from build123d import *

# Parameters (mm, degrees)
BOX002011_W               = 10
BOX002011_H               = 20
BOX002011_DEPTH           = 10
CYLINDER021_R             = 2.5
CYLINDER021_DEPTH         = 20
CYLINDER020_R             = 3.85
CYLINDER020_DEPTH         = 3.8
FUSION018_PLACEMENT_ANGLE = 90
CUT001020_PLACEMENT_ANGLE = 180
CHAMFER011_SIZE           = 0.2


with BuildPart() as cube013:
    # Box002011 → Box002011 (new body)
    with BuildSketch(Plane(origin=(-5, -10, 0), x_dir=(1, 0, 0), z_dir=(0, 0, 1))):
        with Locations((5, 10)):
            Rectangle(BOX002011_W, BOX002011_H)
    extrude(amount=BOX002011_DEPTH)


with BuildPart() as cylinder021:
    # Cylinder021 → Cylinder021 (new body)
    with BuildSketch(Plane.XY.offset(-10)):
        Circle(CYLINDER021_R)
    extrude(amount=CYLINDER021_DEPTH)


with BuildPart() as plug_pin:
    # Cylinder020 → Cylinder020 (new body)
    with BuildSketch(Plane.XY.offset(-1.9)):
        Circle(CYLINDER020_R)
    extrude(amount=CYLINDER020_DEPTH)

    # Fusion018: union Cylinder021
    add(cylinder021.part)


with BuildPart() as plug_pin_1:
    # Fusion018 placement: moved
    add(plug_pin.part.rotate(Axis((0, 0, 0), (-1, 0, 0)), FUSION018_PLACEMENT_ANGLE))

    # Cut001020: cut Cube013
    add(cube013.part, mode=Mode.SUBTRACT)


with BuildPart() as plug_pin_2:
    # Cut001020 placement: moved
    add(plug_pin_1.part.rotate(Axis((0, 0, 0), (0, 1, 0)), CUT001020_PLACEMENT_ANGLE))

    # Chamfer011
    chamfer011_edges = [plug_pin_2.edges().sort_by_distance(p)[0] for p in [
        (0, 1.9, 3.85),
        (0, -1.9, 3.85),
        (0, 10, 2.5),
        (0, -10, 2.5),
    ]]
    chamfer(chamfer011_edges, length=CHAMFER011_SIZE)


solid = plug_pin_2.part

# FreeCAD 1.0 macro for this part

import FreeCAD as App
import Part
import Sketcher
Q = App.Units.Quantity


def edges_at(feature, points):
    """Names of the edges that pass closest to the given points."""
    edges = feature.Shape.Edges
    near = lambda p: min(range(len(edges)), key=lambda i: edges[i].distToShape(Part.Vertex(*p))[0])
    return sorted({f"Edge{near(p) + 1}" for p in points})

doc = App.newDocument("Part")
body = doc.addObject("PartDesign::Body", "Body")

sketch1 = body.newObject("Sketcher::SketchObject", "Sketch")
sketch1.AttachmentSupport = (doc.getObject("XY_Plane"), [""])
sketch1.MapMode = "FlatFace"
sketch1.addGeometry(Part.LineSegment(App.Vector(-5, 10, 0), App.Vector(-5, -10, 0)), False)
sketch1.addGeometry(Part.LineSegment(App.Vector(-5, -10, 0), App.Vector(5, -10, 0)), False)
sketch1.addGeometry(Part.LineSegment(App.Vector(5, -10, 0), App.Vector(5, 10, 0)), False)
sketch1.addGeometry(Part.LineSegment(App.Vector(5, 10, 0), App.Vector(-5, 10, 0)), False)
sketch1.addConstraint(Sketcher.Constraint("Coincident", 0, 2, 1, 1))
sketch1.addConstraint(Sketcher.Constraint("Coincident", 1, 2, 2, 1))
sketch1.addConstraint(Sketcher.Constraint("Coincident", 2, 2, 3, 1))
sketch1.addConstraint(Sketcher.Constraint("Coincident", 3, 2, 0, 1))
sketch1.addConstraint(Sketcher.Constraint("Vertical", 0))
sketch1.addConstraint(Sketcher.Constraint("Horizontal", 1))
sketch1.addConstraint(Sketcher.Constraint("Vertical", 2))
sketch1.addConstraint(Sketcher.Constraint("Horizontal", 3))
sketch1.addConstraint(Sketcher.Constraint("Symmetric", 0, 2, 2, 2, -1, 1))
sketch1.addConstraint(Sketcher.Constraint("DistanceX", 1, 1, 1, 2, Q("10 mm")))
sketch1.addConstraint(Sketcher.Constraint("DistanceY", 0, 2, 0, 1, Q("20 mm")))
pad1 = body.newObject("PartDesign::Pad", "Pad")
pad1.Profile = sketch1
pad1.Length = 10
body2 = doc.addObject("PartDesign::Body", "Body001")

sketch2 = body2.newObject("Sketcher::SketchObject", "Sketch001")
sketch2.AttachmentSupport = (doc.getObject("XY_Plane001"), [""])
sketch2.MapMode = "FlatFace"
sketch2.AttachmentOffset = App.Placement(App.Vector(0, 0, -10), App.Rotation())
sketch2.addGeometry(Part.Circle(App.Vector(0, 0, 0), App.Vector(0, 0, 1), 2.5), False)
sketch2.addConstraint(Sketcher.Constraint("Coincident", 0, 3, -1, 1))
sketch2.addConstraint(Sketcher.Constraint("Diameter", 0, Q("5 mm")))
pad2 = body2.newObject("PartDesign::Pad", "Pad001")
pad2.Profile = sketch2
pad2.Length = 20
body3 = doc.addObject("PartDesign::Body", "Body002")

sketch3 = body3.newObject("Sketcher::SketchObject", "Sketch002")
sketch3.AttachmentSupport = (doc.getObject("XY_Plane002"), [""])
sketch3.MapMode = "FlatFace"
sketch3.AttachmentOffset = App.Placement(App.Vector(0, 0, -1.9), App.Rotation())
sketch3.addGeometry(Part.Circle(App.Vector(0, 0, 0), App.Vector(0, 0, 1), 3.9), False)
sketch3.addConstraint(Sketcher.Constraint("Coincident", 0, 3, -1, 1))
sketch3.addConstraint(Sketcher.Constraint("Diameter", 0, Q("7.7 mm")))
pad3 = body3.newObject("PartDesign::Pad", "Pad002")
pad3.Profile = sketch3
pad3.Length = 3.8
doc.recompute()

boolean = body3.newObject("PartDesign::Boolean", "Boolean")
boolean.Type = "Fuse"
boolean.addObjects([body2])
body4 = doc.addObject("PartDesign::Body", "Body003")
doc.recompute()

body3.Placement = App.Placement(App.Vector(0, 0, 0), App.Rotation(App.Vector(-1, 0, 0), 90))
boolean2 = body4.newObject("PartDesign::Boolean", "Boolean001")
boolean2.Type = "Fuse"
boolean2.addObjects([body3])
doc.recompute()

boolean3 = body4.newObject("PartDesign::Boolean", "Boolean002")
boolean3.Type = "Cut"
boolean3.addObjects([body])
body5 = doc.addObject("PartDesign::Body", "Body004")
doc.recompute()

body4.Placement = App.Placement(App.Vector(0, 0, 0), App.Rotation(App.Vector(0, 1, 0), 180))
boolean4 = body5.newObject("PartDesign::Boolean", "Boolean003")
boolean4.Type = "Fuse"
boolean4.addObjects([body4])
doc.recompute()

chamfer = body5.newObject("PartDesign::Chamfer", "Chamfer")
chamfer.Base = (boolean4, edges_at(boolean4, [
    (0, 1.9, 3.85),
    (0, -1.9, 3.85),
    (0, 10, 2.5),
    (0, -10, 2.5),
]))
chamfer.Size = 0.2

doc.recompute()
